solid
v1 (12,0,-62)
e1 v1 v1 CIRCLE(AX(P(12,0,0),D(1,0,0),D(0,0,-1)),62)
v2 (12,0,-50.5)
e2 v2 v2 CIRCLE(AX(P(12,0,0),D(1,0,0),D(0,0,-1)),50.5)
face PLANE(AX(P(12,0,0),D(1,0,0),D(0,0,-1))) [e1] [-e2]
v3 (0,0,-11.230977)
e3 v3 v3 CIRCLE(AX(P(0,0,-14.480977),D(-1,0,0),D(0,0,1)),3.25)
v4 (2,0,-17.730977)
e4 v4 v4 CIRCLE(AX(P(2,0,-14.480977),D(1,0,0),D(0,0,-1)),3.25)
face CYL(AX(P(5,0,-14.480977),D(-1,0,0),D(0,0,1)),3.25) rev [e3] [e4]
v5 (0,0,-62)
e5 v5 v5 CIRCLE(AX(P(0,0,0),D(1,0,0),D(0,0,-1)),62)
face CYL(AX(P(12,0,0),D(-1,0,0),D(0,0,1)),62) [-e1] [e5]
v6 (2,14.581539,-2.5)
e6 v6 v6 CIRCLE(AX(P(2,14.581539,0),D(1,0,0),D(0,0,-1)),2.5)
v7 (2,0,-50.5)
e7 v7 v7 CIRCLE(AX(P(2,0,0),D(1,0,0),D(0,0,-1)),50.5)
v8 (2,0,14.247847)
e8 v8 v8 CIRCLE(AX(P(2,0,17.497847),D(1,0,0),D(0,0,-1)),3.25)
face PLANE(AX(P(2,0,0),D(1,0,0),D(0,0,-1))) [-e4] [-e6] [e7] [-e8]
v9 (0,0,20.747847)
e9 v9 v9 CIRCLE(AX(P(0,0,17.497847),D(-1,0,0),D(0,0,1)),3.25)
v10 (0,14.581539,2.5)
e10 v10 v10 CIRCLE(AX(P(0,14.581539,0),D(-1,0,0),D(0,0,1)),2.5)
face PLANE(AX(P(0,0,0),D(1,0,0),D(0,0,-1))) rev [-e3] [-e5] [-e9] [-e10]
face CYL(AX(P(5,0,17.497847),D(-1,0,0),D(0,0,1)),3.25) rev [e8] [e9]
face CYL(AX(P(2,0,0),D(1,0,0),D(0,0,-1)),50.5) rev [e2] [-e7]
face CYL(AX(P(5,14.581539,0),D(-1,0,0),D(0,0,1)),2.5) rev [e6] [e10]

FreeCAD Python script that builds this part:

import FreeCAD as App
import Part
import Sketcher

V = App.Vector

doc = App.newDocument("Part")
body = doc.addObject("PartDesign::Body", "Body")

sketch1 = doc.addObject("Sketcher::SketchObject", "Sketch")
body.addObject(sketch1)
sketch1.AttachmentSupport = (doc.YZ_Plane, [""])
sketch1.MapMode = "FlatFace"
sketch1.addGeometry(Part.Circle(V(0, 0, 0), V(0, 0, 1), 62), False)
sketch1.addConstraint([
    Sketcher.Constraint("Coincident", 0, 3, -1, 1),
    Sketcher.Constraint("Diameter", 0, 124.0),
])
pad1 = doc.addObject("PartDesign::Pad", "Pad")
body.addObject(pad1)
pad1.Profile = sketch1
pad1.Length = 12

sketch2 = doc.addObject("Sketcher::SketchObject", "Sketch001")
body.addObject(sketch2)
sketch2.AttachmentSupport = (doc.YZ_Plane, [""])
sketch2.MapMode = "FlatFace"
sketch2.AttachmentOffset = App.Placement(V(0, 0, 12), App.Rotation())
sketch2.addGeometry(Part.Circle(V(0, 0, 0), V(0, 0, 1), 50), False)
sketch2.addConstraint([
    Sketcher.Constraint("Coincident", 0, 3, -1, 1),
    Sketcher.Constraint("Diameter", 0, 101.0),
])
pocket1 = doc.addObject("PartDesign::Pocket", "Pocket")
body.addObject(pocket1)
pocket1.Profile = sketch2
pocket1.Length = 10

sketch3 = doc.addObject("Sketcher::SketchObject", "Sketch002")
body.addObject(sketch3)
sketch3.AttachmentSupport = (doc.YZ_Plane, [""])
sketch3.MapMode = "FlatFace"
sketch3.addGeometry([
    Part.Circle(V(14.6, 0, 0), V(0, 0, 1), 2.5),
    Part.Circle(V(0, -14.5, 0), V(0, 0, 1), 3.2),
    Part.Circle(V(0, 17.5, 0), V(0, 0, 1), 3.2),
], False)
sketch3.addConstraint([
    Sketcher.Constraint("Equal", 1, 2),
    Sketcher.Constraint("PointOnObject", 0, 3, -1),
    Sketcher.Constraint("PointOnObject", 1, 3, -2),
    Sketcher.Constraint("PointOnObject", 2, 3, -2),
    Sketcher.Constraint("Diameter", 0, 5.0),
    Sketcher.Constraint("Diameter", 1, 6.5),
    Sketcher.Constraint("DistanceX", -1, 1, 0, 3, 14.581539),
    Sketcher.Constraint("DistanceY", 1, 3, -1, 1, 14.480977),
    Sketcher.Constraint("DistanceY", -1, 1, 2, 3, 17.497847),
])
pocket2 = doc.addObject("PartDesign::Pocket", "Pocket001")
body.addObject(pocket2)
pocket2.Profile = sketch3
pocket2.Length = 5
pocket2.Reversed = True

doc.recompute()
